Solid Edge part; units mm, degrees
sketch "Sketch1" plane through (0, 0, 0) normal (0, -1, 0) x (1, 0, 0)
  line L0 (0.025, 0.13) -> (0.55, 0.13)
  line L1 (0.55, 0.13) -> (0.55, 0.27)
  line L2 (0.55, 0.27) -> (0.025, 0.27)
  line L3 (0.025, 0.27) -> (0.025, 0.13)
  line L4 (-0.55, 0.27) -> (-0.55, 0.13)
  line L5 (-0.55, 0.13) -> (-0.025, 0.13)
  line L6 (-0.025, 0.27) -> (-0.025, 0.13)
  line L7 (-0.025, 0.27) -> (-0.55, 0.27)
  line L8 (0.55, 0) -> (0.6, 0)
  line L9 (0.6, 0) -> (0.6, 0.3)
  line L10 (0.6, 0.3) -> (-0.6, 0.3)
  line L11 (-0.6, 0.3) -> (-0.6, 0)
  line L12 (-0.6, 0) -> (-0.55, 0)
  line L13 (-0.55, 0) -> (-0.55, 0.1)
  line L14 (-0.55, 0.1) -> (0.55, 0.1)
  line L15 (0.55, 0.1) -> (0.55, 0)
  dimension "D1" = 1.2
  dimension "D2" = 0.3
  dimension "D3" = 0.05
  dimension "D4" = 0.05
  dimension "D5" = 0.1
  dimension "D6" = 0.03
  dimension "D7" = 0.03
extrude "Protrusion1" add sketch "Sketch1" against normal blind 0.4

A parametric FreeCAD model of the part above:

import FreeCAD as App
import Part
import Sketcher
from FreeCAD import Vector
Q = App.Units.Quantity

doc = App.newDocument("Part")
params = doc.addObject("Spreadsheet::Sheet", "Params")
for row, (alias, value) in enumerate([
    ("sketch1_height", "0.1 mm"),
    ("sketch1_height2", "0.3 mm"),
    ("sketch1_height3", "0.14 mm"),
    ("pad1_length", "0.4 mm"),
], start=1):
    params.set(f"A{row}", alias)
    params.set(f"B{row}", "=" + value)
    params.setAlias(f"B{row}", alias)

body = doc.addObject("PartDesign::Body", "Body")

sketch1 = doc.addObject("Sketcher::SketchObject", "Sketch")
body.addObject(sketch1)
sketch1.AttachmentSupport = (doc.XZ_Plane, [""])
sketch1.MapMode = "FlatFace"
sketch1.addGeometry([
    Part.LineSegment(Vector(0.55, 0.1, 0), Vector(0.55, 0, 0)),
    Part.LineSegment(Vector(0.55, 0, 0), Vector(0.6, 0, 0)),
    Part.LineSegment(Vector(0.6, 0, 0), Vector(0.6, 0.3, 0)),
    Part.LineSegment(Vector(0.6, 0.3, 0), Vector(-0.6, 0.3, 0)),
    Part.LineSegment(Vector(-0.6, 0.3, 0), Vector(-0.6, 0, 0)),
    Part.LineSegment(Vector(-0.6, 0, 0), Vector(-0.55, 0, 0)),
    Part.LineSegment(Vector(-0.55, 0, 0), Vector(-0.55, 0.1, 0)),
    Part.LineSegment(Vector(-0.55, 0.1, 0), Vector(0.55, 0.1, 0)),
    Part.LineSegment(Vector(-0.55, 0.13, 0), Vector(-0.55, 0.27, 0)),
    Part.LineSegment(Vector(-0.55, 0.27, 0), Vector(-0.025, 0.27, 0)),
    Part.LineSegment(Vector(-0.025, 0.27, 0), Vector(-0.025, 0.13, 0)),
    Part.LineSegment(Vector(-0.025, 0.13, 0), Vector(-0.55, 0.13, 0)),
    Part.LineSegment(Vector(0.55, 0.13, 0), Vector(0.025, 0.13, 0)),
    Part.LineSegment(Vector(0.025, 0.13, 0), Vector(0.025, 0.27, 0)),
    Part.LineSegment(Vector(0.025, 0.27, 0), Vector(0.55, 0.27, 0)),
    Part.LineSegment(Vector(0.55, 0.27, 0), Vector(0.55, 0.13, 0)),
], False)
sketch1.addConstraint([
    Sketcher.Constraint("Coincident", 0, 2, 1, 1),
    Sketcher.Constraint("Coincident", 1, 2, 2, 1),
    Sketcher.Constraint("Coincident", 2, 2, 3, 1),
    Sketcher.Constraint("Coincident", 3, 2, 4, 1),
    Sketcher.Constraint("Coincident", 4, 2, 5, 1),
    Sketcher.Constraint("Coincident", 5, 2, 6, 1),
    Sketcher.Constraint("Coincident", 6, 2, 7, 1),
    Sketcher.Constraint("Coincident", 7, 2, 0, 1),
    Sketcher.Constraint("Coincident", 8, 2, 9, 1),
    Sketcher.Constraint("Coincident", 9, 2, 10, 1),
    Sketcher.Constraint("Coincident", 10, 2, 11, 1),
    Sketcher.Constraint("Coincident", 11, 2, 8, 1),
    Sketcher.Constraint("Coincident", 12, 2, 13, 1),
    Sketcher.Constraint("Coincident", 13, 2, 14, 1),
    Sketcher.Constraint("Coincident", 14, 2, 15, 1),
    Sketcher.Constraint("Coincident", 15, 2, 12, 1),
    Sketcher.Constraint("Vertical", 0),
    Sketcher.Constraint("Horizontal", 1),
    Sketcher.Constraint("Vertical", 2),
    Sketcher.Constraint("Horizontal", 3),
    Sketcher.Constraint("Vertical", 4),
    Sketcher.Constraint("Horizontal", 5),
    Sketcher.Constraint("Vertical", 6),
    Sketcher.Constraint("Horizontal", 7),
    Sketcher.Constraint("Vertical", 8),
    Sketcher.Constraint("Horizontal", 9),
    Sketcher.Constraint("Vertical", 10),
    Sketcher.Constraint("Horizontal", 11),
    Sketcher.Constraint("Horizontal", 12),
    Sketcher.Constraint("Vertical", 13),
    Sketcher.Constraint("Horizontal", 14),
    Sketcher.Constraint("Vertical", 15),
    Sketcher.Constraint("Symmetric", 1, 2, 4, 2, -1, 1),
    Sketcher.Constraint("Symmetric", 0, 2, 5, 2, -2),
    Sketcher.Constraint("Symmetric", 10, 2, 12, 2, -2),
    Sketcher.Constraint("Symmetric", 8, 2, 14, 2, -2),
    Sketcher.Constraint("Vertical", 6, 2, 8, 2),
    Sketcher.Constraint("DistanceX", -1, 1, 1, 2, Q("0.6 mm")),
    Sketcher.Constraint("DistanceX", -1, 1, 0, 2, Q("0.55 mm")),
    Sketcher.Constraint("DistanceY", 0, 2, 0, 1, Q("0.1 mm")),
    Sketcher.Constraint("DistanceY", 2, 1, 2, 2, Q("0.3 mm")),
    Sketcher.Constraint("DistanceY", 8, 1, 8, 2, Q("0.14 mm")),
    Sketcher.Constraint("DistanceX", 9, 1, 9, 2, Q("0.525 mm")),
    Sketcher.Constraint("DistanceY", -1, 1, 8, 2, Q("0.27 mm")),
])
sketch1.setExpression("Constraints[39]", "Params.sketch1_height")
sketch1.setExpression("Constraints[40]", "Params.sketch1_height2")
sketch1.setExpression("Constraints[41]", "Params.sketch1_height3")
pad1 = doc.addObject("PartDesign::Pad", "Pad")
body.addObject(pad1)
pad1.Profile = sketch1
pad1.setExpression("Length", "Params.pad1_length")
pad1.Reversed = True

doc.recompute()
